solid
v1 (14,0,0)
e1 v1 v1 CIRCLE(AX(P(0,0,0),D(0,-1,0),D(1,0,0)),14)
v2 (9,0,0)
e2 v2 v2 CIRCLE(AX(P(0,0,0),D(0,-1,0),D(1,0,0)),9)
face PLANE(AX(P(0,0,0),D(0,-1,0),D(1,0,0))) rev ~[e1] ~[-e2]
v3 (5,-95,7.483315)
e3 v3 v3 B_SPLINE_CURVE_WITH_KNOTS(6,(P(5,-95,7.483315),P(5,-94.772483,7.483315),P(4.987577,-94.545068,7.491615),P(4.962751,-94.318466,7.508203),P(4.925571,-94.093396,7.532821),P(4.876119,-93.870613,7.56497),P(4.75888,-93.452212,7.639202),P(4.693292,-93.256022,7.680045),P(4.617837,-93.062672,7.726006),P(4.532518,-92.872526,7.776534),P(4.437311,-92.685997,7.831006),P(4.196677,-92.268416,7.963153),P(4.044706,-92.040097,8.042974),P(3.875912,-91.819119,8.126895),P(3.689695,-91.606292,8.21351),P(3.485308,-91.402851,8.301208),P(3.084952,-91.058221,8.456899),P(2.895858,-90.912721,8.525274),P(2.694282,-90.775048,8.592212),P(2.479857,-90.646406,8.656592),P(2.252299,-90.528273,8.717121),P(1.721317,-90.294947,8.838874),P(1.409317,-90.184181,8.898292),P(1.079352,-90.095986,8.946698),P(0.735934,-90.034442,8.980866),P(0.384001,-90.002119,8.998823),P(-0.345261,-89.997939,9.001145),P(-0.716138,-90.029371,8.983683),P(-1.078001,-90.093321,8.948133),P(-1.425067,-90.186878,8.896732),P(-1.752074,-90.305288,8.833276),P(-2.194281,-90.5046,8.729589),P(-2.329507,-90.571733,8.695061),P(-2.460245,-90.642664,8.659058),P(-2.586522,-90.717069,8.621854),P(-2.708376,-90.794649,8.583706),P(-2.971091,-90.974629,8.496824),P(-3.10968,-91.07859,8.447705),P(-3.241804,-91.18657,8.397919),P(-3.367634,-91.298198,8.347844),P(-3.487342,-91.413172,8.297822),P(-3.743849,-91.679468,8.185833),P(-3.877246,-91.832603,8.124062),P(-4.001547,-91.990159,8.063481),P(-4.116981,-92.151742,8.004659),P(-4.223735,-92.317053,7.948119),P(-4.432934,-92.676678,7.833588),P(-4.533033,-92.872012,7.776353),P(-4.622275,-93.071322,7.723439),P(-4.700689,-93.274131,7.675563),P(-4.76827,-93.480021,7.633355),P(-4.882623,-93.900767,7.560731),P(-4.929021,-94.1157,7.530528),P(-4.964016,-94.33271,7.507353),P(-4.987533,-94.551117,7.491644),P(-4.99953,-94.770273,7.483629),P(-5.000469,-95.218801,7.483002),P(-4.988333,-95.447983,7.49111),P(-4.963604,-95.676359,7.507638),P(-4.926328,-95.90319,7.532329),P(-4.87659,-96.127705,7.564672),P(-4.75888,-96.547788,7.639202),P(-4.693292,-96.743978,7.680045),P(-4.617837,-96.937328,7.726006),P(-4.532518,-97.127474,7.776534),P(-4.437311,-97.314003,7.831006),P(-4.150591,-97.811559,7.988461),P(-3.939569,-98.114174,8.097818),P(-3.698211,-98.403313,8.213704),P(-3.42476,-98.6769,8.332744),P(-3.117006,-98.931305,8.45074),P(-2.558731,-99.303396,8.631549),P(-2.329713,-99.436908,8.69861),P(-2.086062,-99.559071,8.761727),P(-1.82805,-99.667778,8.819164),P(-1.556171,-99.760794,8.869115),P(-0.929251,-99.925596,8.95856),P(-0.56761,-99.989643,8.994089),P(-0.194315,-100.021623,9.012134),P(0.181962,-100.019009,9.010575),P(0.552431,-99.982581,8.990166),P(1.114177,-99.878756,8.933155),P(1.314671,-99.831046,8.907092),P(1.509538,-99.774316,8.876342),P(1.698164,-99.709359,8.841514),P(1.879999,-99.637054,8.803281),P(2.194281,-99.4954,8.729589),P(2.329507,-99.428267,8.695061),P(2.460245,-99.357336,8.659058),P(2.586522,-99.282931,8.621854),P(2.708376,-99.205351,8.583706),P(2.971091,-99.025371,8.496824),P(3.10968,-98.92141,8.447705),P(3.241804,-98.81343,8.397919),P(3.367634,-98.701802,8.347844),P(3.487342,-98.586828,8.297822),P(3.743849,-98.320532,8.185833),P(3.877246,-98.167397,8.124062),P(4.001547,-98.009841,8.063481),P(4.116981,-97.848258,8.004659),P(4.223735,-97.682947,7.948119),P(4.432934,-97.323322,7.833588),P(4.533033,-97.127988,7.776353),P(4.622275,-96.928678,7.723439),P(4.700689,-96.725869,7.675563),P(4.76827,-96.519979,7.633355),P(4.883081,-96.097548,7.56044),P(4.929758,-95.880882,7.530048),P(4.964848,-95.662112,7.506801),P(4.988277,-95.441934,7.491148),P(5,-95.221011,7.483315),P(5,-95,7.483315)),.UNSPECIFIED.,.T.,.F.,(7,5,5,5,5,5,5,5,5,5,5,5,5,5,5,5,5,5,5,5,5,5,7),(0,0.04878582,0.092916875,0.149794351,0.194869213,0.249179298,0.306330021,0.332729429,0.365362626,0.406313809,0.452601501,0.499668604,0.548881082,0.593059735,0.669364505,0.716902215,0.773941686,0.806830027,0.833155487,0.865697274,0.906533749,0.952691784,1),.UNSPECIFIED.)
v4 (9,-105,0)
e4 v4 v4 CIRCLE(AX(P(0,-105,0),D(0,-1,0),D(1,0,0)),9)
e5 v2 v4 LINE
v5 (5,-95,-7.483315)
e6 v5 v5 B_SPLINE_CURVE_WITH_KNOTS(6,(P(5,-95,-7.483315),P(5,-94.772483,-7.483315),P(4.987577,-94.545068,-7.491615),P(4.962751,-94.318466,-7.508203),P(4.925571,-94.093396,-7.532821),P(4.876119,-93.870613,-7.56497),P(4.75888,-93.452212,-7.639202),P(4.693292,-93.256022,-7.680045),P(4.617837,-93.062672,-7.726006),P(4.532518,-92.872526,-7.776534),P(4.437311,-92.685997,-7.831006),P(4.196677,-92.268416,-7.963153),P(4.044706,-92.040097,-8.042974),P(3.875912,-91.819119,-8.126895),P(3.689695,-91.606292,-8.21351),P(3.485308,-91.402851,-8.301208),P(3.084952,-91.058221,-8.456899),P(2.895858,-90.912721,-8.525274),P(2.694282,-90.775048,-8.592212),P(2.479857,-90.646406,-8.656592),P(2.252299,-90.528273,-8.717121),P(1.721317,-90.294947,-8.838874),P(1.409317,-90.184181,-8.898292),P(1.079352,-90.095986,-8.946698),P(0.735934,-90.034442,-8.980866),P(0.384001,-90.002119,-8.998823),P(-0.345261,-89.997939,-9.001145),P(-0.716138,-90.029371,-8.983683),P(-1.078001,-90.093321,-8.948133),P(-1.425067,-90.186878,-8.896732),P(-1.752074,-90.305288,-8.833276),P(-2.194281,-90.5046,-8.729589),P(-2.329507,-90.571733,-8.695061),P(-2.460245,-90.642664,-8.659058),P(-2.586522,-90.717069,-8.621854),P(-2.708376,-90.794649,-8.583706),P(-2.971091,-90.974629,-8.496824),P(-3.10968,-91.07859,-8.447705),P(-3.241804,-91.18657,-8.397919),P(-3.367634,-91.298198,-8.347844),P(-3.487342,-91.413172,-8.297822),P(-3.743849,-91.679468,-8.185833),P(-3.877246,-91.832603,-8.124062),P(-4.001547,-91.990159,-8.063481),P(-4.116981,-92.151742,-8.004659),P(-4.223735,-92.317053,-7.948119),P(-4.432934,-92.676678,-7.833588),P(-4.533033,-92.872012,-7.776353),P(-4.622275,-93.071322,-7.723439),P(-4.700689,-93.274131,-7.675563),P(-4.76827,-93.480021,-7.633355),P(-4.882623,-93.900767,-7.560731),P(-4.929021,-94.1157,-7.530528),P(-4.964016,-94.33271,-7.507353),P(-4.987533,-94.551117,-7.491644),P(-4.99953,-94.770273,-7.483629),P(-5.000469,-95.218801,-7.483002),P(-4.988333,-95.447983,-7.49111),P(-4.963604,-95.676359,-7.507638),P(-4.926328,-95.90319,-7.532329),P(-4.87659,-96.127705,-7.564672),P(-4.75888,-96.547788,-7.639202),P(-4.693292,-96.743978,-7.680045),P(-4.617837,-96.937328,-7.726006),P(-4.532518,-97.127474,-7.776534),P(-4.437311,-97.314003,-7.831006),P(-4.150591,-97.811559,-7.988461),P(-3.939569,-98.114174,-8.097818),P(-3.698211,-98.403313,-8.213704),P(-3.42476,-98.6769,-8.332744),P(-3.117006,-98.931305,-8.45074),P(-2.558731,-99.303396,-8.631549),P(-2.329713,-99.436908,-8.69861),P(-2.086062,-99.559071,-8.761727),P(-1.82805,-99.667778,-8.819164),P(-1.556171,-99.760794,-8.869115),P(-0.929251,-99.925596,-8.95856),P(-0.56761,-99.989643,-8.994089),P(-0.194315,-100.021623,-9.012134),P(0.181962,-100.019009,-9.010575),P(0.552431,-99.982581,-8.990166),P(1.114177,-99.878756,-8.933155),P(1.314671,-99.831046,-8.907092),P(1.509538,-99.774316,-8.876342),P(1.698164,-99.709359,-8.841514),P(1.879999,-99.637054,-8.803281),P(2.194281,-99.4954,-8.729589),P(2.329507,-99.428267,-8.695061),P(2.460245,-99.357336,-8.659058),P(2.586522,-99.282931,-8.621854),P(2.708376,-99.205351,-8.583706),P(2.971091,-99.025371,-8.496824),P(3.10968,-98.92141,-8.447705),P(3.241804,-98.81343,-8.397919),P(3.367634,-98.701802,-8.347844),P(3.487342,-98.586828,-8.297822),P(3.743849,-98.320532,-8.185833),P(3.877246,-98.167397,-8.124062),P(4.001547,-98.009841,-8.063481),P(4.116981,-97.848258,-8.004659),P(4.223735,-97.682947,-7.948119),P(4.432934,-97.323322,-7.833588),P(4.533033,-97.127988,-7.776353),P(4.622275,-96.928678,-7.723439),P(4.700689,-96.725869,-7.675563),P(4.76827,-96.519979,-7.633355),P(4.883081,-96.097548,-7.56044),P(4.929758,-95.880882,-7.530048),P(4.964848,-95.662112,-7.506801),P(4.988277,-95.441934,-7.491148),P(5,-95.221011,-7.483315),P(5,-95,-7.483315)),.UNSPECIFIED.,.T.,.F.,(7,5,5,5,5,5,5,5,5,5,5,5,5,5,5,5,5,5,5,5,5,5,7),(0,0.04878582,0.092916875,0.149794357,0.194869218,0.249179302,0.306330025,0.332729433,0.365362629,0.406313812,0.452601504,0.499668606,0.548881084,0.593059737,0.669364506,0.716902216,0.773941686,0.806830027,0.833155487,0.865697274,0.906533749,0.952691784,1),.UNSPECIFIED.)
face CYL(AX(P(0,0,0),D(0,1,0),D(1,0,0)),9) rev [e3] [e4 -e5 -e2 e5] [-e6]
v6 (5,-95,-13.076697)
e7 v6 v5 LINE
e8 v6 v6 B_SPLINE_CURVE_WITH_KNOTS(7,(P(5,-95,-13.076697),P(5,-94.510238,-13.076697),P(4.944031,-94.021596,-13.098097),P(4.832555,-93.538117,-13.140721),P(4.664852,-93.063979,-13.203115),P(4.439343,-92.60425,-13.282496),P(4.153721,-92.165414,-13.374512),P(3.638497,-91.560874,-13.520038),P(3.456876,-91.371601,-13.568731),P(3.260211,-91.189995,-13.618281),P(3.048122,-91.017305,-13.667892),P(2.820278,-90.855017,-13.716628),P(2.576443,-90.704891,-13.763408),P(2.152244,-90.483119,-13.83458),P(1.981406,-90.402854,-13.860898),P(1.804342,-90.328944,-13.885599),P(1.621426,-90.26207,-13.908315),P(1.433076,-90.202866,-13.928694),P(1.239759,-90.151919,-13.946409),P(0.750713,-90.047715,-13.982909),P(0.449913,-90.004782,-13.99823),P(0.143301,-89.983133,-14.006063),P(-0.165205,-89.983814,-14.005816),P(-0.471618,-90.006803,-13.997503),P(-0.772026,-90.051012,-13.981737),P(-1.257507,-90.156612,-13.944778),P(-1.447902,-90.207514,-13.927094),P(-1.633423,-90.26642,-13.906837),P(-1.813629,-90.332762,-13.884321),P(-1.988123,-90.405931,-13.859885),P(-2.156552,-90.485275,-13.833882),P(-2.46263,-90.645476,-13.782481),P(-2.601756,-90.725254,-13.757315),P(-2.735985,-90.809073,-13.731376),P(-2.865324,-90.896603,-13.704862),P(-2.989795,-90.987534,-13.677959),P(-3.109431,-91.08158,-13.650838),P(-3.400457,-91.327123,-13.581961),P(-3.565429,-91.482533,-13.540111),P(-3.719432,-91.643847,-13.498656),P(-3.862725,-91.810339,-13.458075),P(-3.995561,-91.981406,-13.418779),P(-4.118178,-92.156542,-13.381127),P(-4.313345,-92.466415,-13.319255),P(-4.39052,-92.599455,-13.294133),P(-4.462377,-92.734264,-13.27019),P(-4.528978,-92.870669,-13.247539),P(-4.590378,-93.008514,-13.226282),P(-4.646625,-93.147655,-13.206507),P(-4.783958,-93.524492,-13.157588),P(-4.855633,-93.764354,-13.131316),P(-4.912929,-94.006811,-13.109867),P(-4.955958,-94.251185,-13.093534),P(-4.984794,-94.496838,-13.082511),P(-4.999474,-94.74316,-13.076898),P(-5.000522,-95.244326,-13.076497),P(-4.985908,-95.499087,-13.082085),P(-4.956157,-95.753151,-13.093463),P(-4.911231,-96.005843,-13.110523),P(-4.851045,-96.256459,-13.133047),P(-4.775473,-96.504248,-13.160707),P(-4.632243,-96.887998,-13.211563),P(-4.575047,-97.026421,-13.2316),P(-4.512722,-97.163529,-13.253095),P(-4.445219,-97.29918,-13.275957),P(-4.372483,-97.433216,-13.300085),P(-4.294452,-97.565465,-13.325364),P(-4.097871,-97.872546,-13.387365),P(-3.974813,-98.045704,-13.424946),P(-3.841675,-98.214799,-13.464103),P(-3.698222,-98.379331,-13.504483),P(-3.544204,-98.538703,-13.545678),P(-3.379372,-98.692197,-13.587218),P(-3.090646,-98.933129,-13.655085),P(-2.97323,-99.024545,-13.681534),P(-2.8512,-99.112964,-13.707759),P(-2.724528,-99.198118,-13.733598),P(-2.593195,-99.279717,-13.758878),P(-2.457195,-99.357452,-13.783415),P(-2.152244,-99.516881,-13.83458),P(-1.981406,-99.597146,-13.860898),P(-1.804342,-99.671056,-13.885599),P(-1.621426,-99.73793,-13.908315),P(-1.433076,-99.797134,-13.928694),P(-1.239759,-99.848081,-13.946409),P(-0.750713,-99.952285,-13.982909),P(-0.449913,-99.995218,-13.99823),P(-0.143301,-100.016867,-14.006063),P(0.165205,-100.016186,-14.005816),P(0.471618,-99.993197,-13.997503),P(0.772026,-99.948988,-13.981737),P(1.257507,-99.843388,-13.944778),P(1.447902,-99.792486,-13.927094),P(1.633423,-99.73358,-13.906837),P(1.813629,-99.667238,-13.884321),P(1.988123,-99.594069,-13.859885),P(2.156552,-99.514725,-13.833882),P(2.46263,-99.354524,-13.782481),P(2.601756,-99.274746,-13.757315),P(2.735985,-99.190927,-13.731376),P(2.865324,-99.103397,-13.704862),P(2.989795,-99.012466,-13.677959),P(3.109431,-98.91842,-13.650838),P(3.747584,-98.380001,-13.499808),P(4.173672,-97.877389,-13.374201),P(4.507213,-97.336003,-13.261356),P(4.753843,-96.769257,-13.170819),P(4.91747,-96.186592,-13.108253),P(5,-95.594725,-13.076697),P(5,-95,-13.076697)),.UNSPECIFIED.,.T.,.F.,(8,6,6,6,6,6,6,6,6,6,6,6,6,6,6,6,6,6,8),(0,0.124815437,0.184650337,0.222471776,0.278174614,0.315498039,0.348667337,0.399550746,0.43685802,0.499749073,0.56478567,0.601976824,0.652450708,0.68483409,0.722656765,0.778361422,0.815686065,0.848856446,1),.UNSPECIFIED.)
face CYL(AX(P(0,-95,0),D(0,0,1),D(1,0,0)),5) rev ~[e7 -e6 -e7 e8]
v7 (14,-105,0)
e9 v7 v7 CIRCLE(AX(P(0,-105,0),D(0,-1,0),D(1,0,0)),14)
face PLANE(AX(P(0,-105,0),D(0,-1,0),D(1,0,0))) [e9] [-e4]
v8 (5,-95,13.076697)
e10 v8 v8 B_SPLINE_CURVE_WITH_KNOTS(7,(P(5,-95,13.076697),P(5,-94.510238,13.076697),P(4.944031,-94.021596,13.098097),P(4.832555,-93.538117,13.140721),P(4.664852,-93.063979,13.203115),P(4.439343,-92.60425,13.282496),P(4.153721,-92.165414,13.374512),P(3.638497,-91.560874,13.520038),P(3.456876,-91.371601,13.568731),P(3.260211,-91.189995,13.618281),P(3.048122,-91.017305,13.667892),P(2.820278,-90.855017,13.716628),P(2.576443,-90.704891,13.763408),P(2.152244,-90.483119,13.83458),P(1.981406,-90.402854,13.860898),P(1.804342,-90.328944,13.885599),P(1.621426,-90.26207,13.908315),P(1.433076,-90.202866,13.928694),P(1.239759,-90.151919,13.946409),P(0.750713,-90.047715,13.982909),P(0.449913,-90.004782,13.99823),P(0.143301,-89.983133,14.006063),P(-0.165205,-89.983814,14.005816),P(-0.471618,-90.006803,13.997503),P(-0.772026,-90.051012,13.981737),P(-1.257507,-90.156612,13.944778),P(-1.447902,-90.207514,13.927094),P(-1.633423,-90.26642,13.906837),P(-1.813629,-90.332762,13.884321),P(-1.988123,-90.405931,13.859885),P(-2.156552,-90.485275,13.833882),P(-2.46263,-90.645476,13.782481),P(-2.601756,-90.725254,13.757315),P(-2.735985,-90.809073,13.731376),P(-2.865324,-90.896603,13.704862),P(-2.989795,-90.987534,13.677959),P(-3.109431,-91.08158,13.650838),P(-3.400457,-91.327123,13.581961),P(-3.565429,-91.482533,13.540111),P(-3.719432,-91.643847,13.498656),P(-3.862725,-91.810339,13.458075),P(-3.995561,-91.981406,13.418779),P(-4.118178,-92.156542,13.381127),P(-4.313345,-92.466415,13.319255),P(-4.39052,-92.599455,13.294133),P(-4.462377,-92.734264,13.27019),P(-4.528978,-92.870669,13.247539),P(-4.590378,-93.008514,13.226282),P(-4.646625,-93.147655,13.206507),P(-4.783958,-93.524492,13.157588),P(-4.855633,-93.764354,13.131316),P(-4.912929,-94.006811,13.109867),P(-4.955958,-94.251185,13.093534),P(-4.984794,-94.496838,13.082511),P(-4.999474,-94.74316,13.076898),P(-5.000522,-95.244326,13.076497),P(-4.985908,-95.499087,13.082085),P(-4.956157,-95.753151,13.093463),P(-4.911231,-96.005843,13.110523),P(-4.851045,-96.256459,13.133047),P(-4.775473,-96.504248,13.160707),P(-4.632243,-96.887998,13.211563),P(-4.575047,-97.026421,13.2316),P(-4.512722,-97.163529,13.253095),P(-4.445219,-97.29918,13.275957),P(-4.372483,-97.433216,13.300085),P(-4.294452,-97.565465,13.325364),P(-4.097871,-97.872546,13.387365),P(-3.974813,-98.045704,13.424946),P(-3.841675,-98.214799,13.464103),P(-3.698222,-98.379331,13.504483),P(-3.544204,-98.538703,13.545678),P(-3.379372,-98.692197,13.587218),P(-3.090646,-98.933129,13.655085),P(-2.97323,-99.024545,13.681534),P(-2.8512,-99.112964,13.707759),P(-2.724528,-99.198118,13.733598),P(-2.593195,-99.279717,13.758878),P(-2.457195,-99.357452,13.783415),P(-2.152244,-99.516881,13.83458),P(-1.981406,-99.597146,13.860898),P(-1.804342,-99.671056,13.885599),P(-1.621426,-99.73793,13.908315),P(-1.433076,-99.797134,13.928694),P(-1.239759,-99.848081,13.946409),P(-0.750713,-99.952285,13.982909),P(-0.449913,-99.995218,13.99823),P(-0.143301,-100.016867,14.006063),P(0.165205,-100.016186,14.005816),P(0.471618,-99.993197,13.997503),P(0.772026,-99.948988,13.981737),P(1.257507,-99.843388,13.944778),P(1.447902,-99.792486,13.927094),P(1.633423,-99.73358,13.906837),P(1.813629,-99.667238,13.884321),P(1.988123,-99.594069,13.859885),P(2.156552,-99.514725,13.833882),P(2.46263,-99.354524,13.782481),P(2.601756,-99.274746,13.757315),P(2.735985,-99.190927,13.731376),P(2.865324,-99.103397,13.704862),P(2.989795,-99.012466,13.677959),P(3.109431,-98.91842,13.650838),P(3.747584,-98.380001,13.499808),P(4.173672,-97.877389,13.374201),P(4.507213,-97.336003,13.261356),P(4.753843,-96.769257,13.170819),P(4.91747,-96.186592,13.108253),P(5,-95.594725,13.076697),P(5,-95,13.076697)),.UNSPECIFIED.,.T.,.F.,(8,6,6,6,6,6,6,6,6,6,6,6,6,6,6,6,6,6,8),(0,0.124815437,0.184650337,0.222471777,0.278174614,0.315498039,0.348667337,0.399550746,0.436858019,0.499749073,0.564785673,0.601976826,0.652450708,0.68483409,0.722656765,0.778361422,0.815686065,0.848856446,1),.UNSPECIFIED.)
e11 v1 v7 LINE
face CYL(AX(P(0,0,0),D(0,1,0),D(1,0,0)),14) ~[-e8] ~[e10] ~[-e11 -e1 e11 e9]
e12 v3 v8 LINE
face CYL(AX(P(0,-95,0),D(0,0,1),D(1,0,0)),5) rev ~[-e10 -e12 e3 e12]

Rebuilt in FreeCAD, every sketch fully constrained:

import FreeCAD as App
import Part
import Sketcher
from FreeCAD import Vector
Q = App.Units.Quantity

doc = App.newDocument("Part")
body = doc.addObject("PartDesign::Body", "Body")

# Sketch on XZ plane
sketch1 = body.newObject("Sketcher::SketchObject", "Sketch")
sketch1.AttachmentSupport = (doc.getObject("XZ_Plane"), [""])
sketch1.MapMode = "FlatFace"
sketch1.addGeometry(Part.Circle(Vector(0, 0, 0), Vector(0, 0, 1), 14), False)
sketch1.addGeometry(Part.Circle(Vector(0, 0, 0), Vector(0, 0, 1), 9), False)
sketch1.addConstraint(Sketcher.Constraint("Coincident", 0, 3, -1, 1))
sketch1.addConstraint(Sketcher.Constraint("Coincident", 1, 3, -1, 1))
sketch1.addConstraint(Sketcher.Constraint("Diameter", 0, Q("28 mm")))
sketch1.addConstraint(Sketcher.Constraint("Diameter", 1, Q("18 mm")))
pad1 = body.newObject("PartDesign::Pad", "Pad")
pad1.Profile = sketch1
pad1.Length = 105

# Sketch on XY plane
sketch2 = body.newObject("Sketcher::SketchObject", "Sketch001")
sketch2.AttachmentSupport = (doc.getObject("XY_Plane"), [""])
sketch2.MapMode = "FlatFace"
sketch2.addGeometry(Part.Circle(Vector(0, -95, 0), Vector(0, 0, 1), 5), False)
sketch2.addConstraint(Sketcher.Constraint("PointOnObject", 0, 3, -2))
sketch2.addConstraint(Sketcher.Constraint("Diameter", 0, Q("10 mm")))
sketch2.addConstraint(Sketcher.Constraint("DistanceY", 0, 3, -1, 1, Q("95 mm")))
pocket1 = body.newObject("PartDesign::Pocket", "Pocket")
pocket1.Profile = sketch2
pocket1.Length = 67.2
pocket1.Midplane = True

doc.recompute()
